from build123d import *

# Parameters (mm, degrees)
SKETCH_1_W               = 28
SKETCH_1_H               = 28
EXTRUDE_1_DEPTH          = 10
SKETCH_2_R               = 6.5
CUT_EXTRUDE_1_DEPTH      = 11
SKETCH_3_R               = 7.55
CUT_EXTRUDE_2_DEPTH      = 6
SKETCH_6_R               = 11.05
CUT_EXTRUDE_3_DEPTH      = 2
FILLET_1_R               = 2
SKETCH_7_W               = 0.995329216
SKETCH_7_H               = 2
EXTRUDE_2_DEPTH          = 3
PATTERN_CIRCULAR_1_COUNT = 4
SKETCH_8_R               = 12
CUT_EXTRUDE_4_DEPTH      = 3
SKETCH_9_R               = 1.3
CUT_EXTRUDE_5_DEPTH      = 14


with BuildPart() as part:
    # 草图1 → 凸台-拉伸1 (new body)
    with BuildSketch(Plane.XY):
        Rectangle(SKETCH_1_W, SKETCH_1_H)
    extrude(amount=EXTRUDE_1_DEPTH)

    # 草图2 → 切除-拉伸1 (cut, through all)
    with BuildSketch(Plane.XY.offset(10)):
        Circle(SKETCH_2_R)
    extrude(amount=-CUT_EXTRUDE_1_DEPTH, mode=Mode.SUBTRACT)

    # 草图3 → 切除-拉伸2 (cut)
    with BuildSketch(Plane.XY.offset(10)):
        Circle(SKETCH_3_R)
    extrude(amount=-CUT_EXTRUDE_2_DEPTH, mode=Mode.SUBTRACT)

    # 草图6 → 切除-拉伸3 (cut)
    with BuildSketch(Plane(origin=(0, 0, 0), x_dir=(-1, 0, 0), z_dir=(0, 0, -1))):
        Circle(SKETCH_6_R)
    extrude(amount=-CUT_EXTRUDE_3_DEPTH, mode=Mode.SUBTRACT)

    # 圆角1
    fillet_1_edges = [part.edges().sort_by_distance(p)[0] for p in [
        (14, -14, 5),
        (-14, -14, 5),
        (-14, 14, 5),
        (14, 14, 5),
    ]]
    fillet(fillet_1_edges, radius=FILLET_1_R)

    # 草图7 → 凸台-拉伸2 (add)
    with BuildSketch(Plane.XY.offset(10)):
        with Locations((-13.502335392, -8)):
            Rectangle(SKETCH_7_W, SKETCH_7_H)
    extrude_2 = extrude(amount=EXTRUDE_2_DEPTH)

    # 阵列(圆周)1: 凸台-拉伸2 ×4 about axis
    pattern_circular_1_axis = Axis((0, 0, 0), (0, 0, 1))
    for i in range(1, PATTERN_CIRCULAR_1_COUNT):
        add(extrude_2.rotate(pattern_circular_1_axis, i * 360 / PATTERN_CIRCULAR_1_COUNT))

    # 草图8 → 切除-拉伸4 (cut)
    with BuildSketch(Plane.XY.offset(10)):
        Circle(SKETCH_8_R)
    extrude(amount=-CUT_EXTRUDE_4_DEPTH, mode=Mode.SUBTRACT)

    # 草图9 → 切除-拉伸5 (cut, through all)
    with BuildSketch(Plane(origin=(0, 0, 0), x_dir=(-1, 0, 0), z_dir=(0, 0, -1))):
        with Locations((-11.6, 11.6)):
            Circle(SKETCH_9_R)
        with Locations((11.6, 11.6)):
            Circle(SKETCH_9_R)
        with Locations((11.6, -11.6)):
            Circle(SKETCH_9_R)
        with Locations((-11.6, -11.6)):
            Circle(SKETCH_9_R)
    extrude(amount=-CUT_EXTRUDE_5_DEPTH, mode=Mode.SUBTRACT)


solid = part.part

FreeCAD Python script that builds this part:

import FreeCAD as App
import Part
import Sketcher

V = App.Vector
Q = App.Units.Quantity


def edges_at(feature, points):
    """Names of the edges that pass closest to the given points."""
    edges = feature.Shape.Edges
    near = lambda p: min(range(len(edges)), key=lambda i: edges[i].distToShape(Part.Vertex(*p))[0])
    return sorted({f"Edge{near(p) + 1}" for p in points})

doc = App.newDocument("Part")
body = doc.addObject("PartDesign::Body", "Body")

# Sketch on XY plane
sketch1 = body.newObject("Sketcher::SketchObject", "Sketch")
sketch1.AttachmentSupport = (doc.getObject("XY_Plane"), [""])
sketch1.MapMode = "FlatFace"
sketch1.addGeometry([
    Part.LineSegment(V(-14, 14, 0), V(-14, -14, 0)),
    Part.LineSegment(V(-14, -14, 0), V(14, -14, 0)),
    Part.LineSegment(V(14, -14, 0), V(14, 14, 0)),
    Part.LineSegment(V(14, 14, 0), V(-14, 14, 0)),
], False)
sketch1.addConstraint([
    Sketcher.Constraint("Coincident", 0, 2, 1, 1),
    Sketcher.Constraint("Coincident", 1, 2, 2, 1),
    Sketcher.Constraint("Coincident", 2, 2, 3, 1),
    Sketcher.Constraint("Coincident", 3, 2, 0, 1),
    Sketcher.Constraint("Vertical", 0),
    Sketcher.Constraint("Horizontal", 1),
    Sketcher.Constraint("Vertical", 2),
    Sketcher.Constraint("Horizontal", 3),
    Sketcher.Constraint("Symmetric", 0, 2, 2, 2, -1, 1),
    Sketcher.Constraint("Equal", 3, 0),
    Sketcher.Constraint("DistanceX", 1, 1, 1, 2, Q("28 mm")),
])
pad1 = body.newObject("PartDesign::Pad", "Pad")
pad1.Profile = sketch1
pad1.Length = 10

# Sketch on XY plane
sketch2 = body.newObject("Sketcher::SketchObject", "Sketch001")
sketch2.AttachmentSupport = (doc.getObject("XY_Plane"), [""])
sketch2.MapMode = "FlatFace"
sketch2.AttachmentOffset = App.Placement(V(0, 0, 10), App.Rotation())
sketch2.addGeometry(Part.Circle(V(0, 0, 0), V(0, 0, 1), 6), False)
sketch2.addConstraint([
    Sketcher.Constraint("Coincident", 0, 3, -1, 1),
    Sketcher.Constraint("Diameter", 0, Q("13 mm")),
])
pocket1 = body.newObject("PartDesign::Pocket", "Pocket")
pocket1.Profile = sketch2
pocket1.Type = "ThroughAll"

# Sketch on XY plane
sketch3 = body.newObject("Sketcher::SketchObject", "Sketch002")
sketch3.AttachmentSupport = (doc.getObject("XY_Plane"), [""])
sketch3.MapMode = "FlatFace"
sketch3.AttachmentOffset = App.Placement(V(0, 0, 10), App.Rotation())
sketch3.addGeometry(Part.Circle(V(0, 0, 0), V(0, 0, 1), 8), False)
sketch3.addConstraint([
    Sketcher.Constraint("Coincident", 0, 3, -1, 1),
    Sketcher.Constraint("Diameter", 0, Q("15.1 mm")),
])
pocket2 = body.newObject("PartDesign::Pocket", "Pocket001")
pocket2.Profile = sketch3
pocket2.Length = 6

# Sketch on XY plane
sketch4 = body.newObject("Sketcher::SketchObject", "Sketch003")
sketch4.AttachmentSupport = (doc.getObject("XY_Plane"), [""])
sketch4.MapMode = "FlatFace"
sketch4.addGeometry(Part.Circle(V(0, 0, 0), V(0, 0, 1), 11), False)
sketch4.addConstraint([
    Sketcher.Constraint("Coincident", 0, 3, -1, 1),
    Sketcher.Constraint("Diameter", 0, Q("22.1 mm")),
])
pocket3 = body.newObject("PartDesign::Pocket", "Pocket002")
pocket3.Profile = sketch4
pocket3.Length = 2
pocket3.Reversed = True
doc.recompute()

fillet = body.newObject("PartDesign::Fillet", "Fillet")
fillet.Base = (pocket3, edges_at(pocket3, [
    (14, -14, 5),
    (-14, -14, 5),
    (-14, 14, 5),
    (14, 14, 5),
]))
fillet.Radius = 2

# Sketch on XY plane
sketch5 = body.newObject("Sketcher::SketchObject", "Sketch004")
sketch5.AttachmentSupport = (doc.getObject("XY_Plane"), [""])
sketch5.MapMode = "FlatFace"
sketch5.AttachmentOffset = App.Placement(V(0, 0, 10), App.Rotation())
sketch5.addGeometry([
    Part.LineSegment(V(-14, -7, 0), V(-14, -9, 0)),
    Part.LineSegment(V(-14, -9, 0), V(-13, -9, 0)),
    Part.LineSegment(V(-13, -9, 0), V(-13, -7, 0)),
    Part.LineSegment(V(-13, -7, 0), V(-14, -7, 0)),
], False)
sketch5.addConstraint([
    Sketcher.Constraint("Coincident", 0, 2, 1, 1),
    Sketcher.Constraint("Coincident", 1, 2, 2, 1),
    Sketcher.Constraint("Coincident", 2, 2, 3, 1),
    Sketcher.Constraint("Coincident", 3, 2, 0, 1),
    Sketcher.Constraint("Vertical", 0),
    Sketcher.Constraint("Horizontal", 1),
    Sketcher.Constraint("Vertical", 2),
    Sketcher.Constraint("Horizontal", 3),
    Sketcher.Constraint("DistanceY", 0, 2, 0, 1, Q("2 mm")),
    Sketcher.Constraint("DistanceX", 0, 2, -1, 1, Q("14 mm")),
    Sketcher.Constraint("DistanceY", 0, 2, -1, 1, Q("9 mm")),
    Sketcher.Constraint("DistanceX", 1, 1, 1, 2, Q("0.995329 mm")),
])
pad2 = body.newObject("PartDesign::Pad", "Pad001")
pad2.Profile = sketch5
pad2.Length = 3
doc.recompute()

polarpattern = body.newObject("PartDesign::PolarPattern", "PolarPattern")
polarpattern.Originals = [pad2]
polarpattern.Axis = (doc.getObject("Z_Axis"), [""])
polarpattern.Angle = 360
polarpattern.Occurrences = 4
body.Tip = polarpattern

# Sketch on XY plane
sketch6 = body.newObject("Sketcher::SketchObject", "Sketch005")
sketch6.AttachmentSupport = (doc.getObject("XY_Plane"), [""])
sketch6.MapMode = "FlatFace"
sketch6.AttachmentOffset = App.Placement(V(0, 0, 10), App.Rotation())
sketch6.addGeometry(Part.Circle(V(0, 0, 0), V(0, 0, 1), 12), False)
sketch6.addConstraint([
    Sketcher.Constraint("Coincident", 0, 3, -1, 1),
    Sketcher.Constraint("Diameter", 0, Q("24 mm")),
])
pocket4 = body.newObject("PartDesign::Pocket", "Pocket003")
pocket4.Profile = sketch6
pocket4.Length = 3

# Sketch on XY plane
sketch7 = body.newObject("Sketcher::SketchObject", "Sketch006")
sketch7.AttachmentSupport = (doc.getObject("XY_Plane"), [""])
sketch7.MapMode = "FlatFace"
sketch7.addGeometry([
    Part.Circle(V(11.6, 11.6, 0), V(0, 0, 1), 1.3),
    Part.Circle(V(-11.6, 11.6, 0), V(0, 0, 1), 1.3),
    Part.Circle(V(-11.6, -11.6, 0), V(0, 0, 1), 1.3),
    Part.Circle(V(11.6, -11.6, 0), V(0, 0, 1), 1.3),
], False)
sketch7.addConstraint([
    Sketcher.Constraint("Equal", 0, 1),
    Sketcher.Constraint("Equal", 1, 2),
    Sketcher.Constraint("Equal", 2, 3),
    Sketcher.Constraint("Symmetric", 0, 3, 2, 3, -1, 1),
    Sketcher.Constraint("Symmetric", 1, 3, 3, 3, -1, 1),
    Sketcher.Constraint("Symmetric", 0, 3, 1, 3, -2),
    Sketcher.Constraint("Diameter", 0, Q("2.6 mm")),
    Sketcher.Constraint("DistanceX", -1, 1, 0, 3, Q("11.6 mm")),
    Sketcher.Constraint("DistanceY", -1, 1, 0, 3, Q("11.6 mm")),
])
pocket5 = body.newObject("PartDesign::Pocket", "Pocket004")
pocket5.Profile = sketch7
pocket5.Type = "ThroughAll"
pocket5.Reversed = True

doc.recompute()
